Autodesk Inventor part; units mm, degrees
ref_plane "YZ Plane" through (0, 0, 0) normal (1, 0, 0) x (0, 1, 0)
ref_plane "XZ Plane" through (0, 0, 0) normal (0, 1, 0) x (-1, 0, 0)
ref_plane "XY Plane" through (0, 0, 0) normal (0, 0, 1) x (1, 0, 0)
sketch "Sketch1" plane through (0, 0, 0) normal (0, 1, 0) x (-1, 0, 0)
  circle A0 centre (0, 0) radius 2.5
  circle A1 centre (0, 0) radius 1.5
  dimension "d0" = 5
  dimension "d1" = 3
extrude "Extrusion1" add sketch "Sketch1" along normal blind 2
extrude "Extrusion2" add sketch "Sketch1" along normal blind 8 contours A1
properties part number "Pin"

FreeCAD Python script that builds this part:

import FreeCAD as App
import Part
import Sketcher

V = App.Vector

doc = App.newDocument("Part")
params = doc.addObject("Spreadsheet::Sheet", "Params")
for row, (alias, value) in enumerate([
    ("sketch1_diameter", "5 mm"),
    ("sketch1_diameter2", "3 mm"),
    ("pad1_length", "2 mm"),
    ("sketch2_diameter", "3 mm"),
    ("pad2_length", "8 mm"),
], start=1):
    params.set(f"A{row}", alias)
    params.set(f"B{row}", "=" + value)
    params.setAlias(f"B{row}", alias)

body = doc.addObject("PartDesign::Body", "Body")

sketch1 = body.newObject("Sketcher::SketchObject", "Sketch")
sketch1.AttachmentSupport = (doc.getObject("XZ_Plane"), [""])
sketch1.MapMode = "FlatFace"
sketch1.addGeometry(Part.Circle(V(0, 0, 0), V(0, 0, 1), 2.5), False)
sketch1.addGeometry(Part.Circle(V(0, 0, 0), V(0, 0, 1), 1.5), False)
sketch1.addConstraint(Sketcher.Constraint("Coincident", 0, 3, -1, 1))
sketch1.addConstraint(Sketcher.Constraint("Coincident", 1, 3, -1, 1))
sketch1.addConstraint(Sketcher.Constraint("Diameter", 0, 5.0))
sketch1.addConstraint(Sketcher.Constraint("Diameter", 1, 3.0))
sketch1.setExpression("Constraints[2]", "Params.sketch1_diameter")
sketch1.setExpression("Constraints[3]", "Params.sketch1_diameter2")
pad1 = body.newObject("PartDesign::Pad", "Pad")
pad1.Profile = sketch1
pad1.setExpression("Length", "Params.pad1_length")
pad1.Reversed = True

sketch2 = body.newObject("Sketcher::SketchObject", "Sketch001")
sketch2.AttachmentSupport = (doc.getObject("XZ_Plane"), [""])
sketch2.MapMode = "FlatFace"
sketch2.addGeometry(Part.Circle(V(0, 0, 0), V(0, 0, 1), 1.5), False)
sketch2.addConstraint(Sketcher.Constraint("Coincident", 0, 3, -1, 1))
sketch2.addConstraint(Sketcher.Constraint("Diameter", 0, 3.0))
sketch2.setExpression("Constraints[1]", "Params.sketch2_diameter")
pad2 = body.newObject("PartDesign::Pad", "Pad001")
pad2.Profile = sketch2
pad2.setExpression("Length", "Params.pad2_length")
pad2.Reversed = True

doc.recompute()
